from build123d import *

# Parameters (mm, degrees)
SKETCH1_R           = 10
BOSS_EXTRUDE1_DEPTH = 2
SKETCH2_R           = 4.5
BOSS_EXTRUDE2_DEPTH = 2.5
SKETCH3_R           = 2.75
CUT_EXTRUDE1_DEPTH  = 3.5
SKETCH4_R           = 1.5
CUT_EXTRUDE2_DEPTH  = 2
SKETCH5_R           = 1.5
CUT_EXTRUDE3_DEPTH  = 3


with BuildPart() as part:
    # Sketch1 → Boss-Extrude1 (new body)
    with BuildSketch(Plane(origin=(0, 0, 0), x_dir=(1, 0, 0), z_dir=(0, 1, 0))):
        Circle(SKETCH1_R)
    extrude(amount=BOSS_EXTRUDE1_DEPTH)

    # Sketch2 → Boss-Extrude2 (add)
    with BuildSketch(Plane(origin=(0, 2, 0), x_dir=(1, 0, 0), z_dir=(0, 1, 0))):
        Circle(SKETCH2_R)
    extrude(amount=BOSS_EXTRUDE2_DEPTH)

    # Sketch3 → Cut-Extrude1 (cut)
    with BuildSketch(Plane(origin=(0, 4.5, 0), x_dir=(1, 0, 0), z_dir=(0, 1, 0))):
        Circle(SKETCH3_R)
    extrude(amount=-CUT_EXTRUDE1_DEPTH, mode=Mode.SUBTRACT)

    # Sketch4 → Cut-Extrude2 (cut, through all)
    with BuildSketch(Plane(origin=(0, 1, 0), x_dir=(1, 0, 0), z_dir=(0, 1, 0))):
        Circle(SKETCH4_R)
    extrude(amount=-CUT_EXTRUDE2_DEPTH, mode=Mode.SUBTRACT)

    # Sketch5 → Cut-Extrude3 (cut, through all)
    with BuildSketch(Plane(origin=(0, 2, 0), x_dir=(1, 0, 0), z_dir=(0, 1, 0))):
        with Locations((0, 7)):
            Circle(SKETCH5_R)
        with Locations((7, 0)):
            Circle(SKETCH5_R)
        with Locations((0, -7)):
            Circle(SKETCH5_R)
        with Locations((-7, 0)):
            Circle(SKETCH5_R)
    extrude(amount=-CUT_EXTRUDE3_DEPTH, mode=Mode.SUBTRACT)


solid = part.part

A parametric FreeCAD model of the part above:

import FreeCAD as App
import Part
import Sketcher
Q = App.Units.Quantity

doc = App.newDocument("Part")
body = doc.addObject("PartDesign::Body", "Body")

# Sketch on XZ plane
sketch1 = body.newObject("Sketcher::SketchObject", "Sketch")
sketch1.AttachmentSupport = (doc.getObject("XZ_Plane"), [""])
sketch1.MapMode = "FlatFace"
sketch1.addGeometry(Part.Circle(App.Vector(0, 0, 0), App.Vector(0, 0, 1), 10), False)
sketch1.addConstraint(Sketcher.Constraint("Coincident", 0, 3, -1, 1))
sketch1.addConstraint(Sketcher.Constraint("Diameter", 0, Q("20 mm")))
pad1 = body.newObject("PartDesign::Pad", "Pad")
pad1.Profile = sketch1
pad1.Length = 2
pad1.Reversed = True

# Sketch on XZ plane
sketch2 = body.newObject("Sketcher::SketchObject", "Sketch001")
sketch2.AttachmentSupport = (doc.getObject("XZ_Plane"), [""])
sketch2.MapMode = "FlatFace"
sketch2.AttachmentOffset = App.Placement(App.Vector(0, 0, -2), App.Rotation())
sketch2.addGeometry(Part.Circle(App.Vector(0, 0, 0), App.Vector(0, 0, 1), 4.5), False)
sketch2.addConstraint(Sketcher.Constraint("Coincident", 0, 3, -1, 1))
sketch2.addConstraint(Sketcher.Constraint("Diameter", 0, Q("9 mm")))
pad2 = body.newObject("PartDesign::Pad", "Pad001")
pad2.Profile = sketch2
pad2.Length = 2.5
pad2.Reversed = True

# Sketch on XZ plane
sketch3 = body.newObject("Sketcher::SketchObject", "Sketch002")
sketch3.AttachmentSupport = (doc.getObject("XZ_Plane"), [""])
sketch3.MapMode = "FlatFace"
sketch3.AttachmentOffset = App.Placement(App.Vector(0, 0, -4.5), App.Rotation())
sketch3.addGeometry(Part.Circle(App.Vector(0, 0, 0), App.Vector(0, 0, 1), 2.75), False)
sketch3.addConstraint(Sketcher.Constraint("Coincident", 0, 3, -1, 1))
sketch3.addConstraint(Sketcher.Constraint("Diameter", 0, Q("5.5 mm")))
pocket1 = body.newObject("PartDesign::Pocket", "Pocket")
pocket1.Profile = sketch3
pocket1.Length = 3.5
pocket1.Reversed = True

# Sketch on XZ plane
sketch4 = body.newObject("Sketcher::SketchObject", "Sketch003")
sketch4.AttachmentSupport = (doc.getObject("XZ_Plane"), [""])
sketch4.MapMode = "FlatFace"
sketch4.AttachmentOffset = App.Placement(App.Vector(0, 0, -1), App.Rotation())
sketch4.addGeometry(Part.Circle(App.Vector(0, 0, 0), App.Vector(0, 0, 1), 1.5), False)
sketch4.addConstraint(Sketcher.Constraint("Coincident", 0, 3, -1, 1))
sketch4.addConstraint(Sketcher.Constraint("Diameter", 0, Q("3 mm")))
pocket2 = body.newObject("PartDesign::Pocket", "Pocket001")
pocket2.Profile = sketch4
pocket2.Type = "ThroughAll"
pocket2.Reversed = True

# Sketch on XZ plane
sketch5 = body.newObject("Sketcher::SketchObject", "Sketch004")
sketch5.AttachmentSupport = (doc.getObject("XZ_Plane"), [""])
sketch5.MapMode = "FlatFace"
sketch5.AttachmentOffset = App.Placement(App.Vector(0, 0, -2), App.Rotation())
sketch5.addGeometry(Part.Circle(App.Vector(0, -7, 0), App.Vector(0, 0, 1), 1.5), False)
sketch5.addGeometry(Part.Circle(App.Vector(7, 0, 0), App.Vector(0, 0, 1), 1.5), False)
sketch5.addGeometry(Part.Circle(App.Vector(0, 7, 0), App.Vector(0, 0, 1), 1.5), False)
sketch5.addGeometry(Part.Circle(App.Vector(-7, 0, 0), App.Vector(0, 0, 1), 1.5), False)
sketch5.addConstraint(Sketcher.Constraint("Equal", 0, 1))
sketch5.addConstraint(Sketcher.Constraint("Equal", 1, 2))
sketch5.addConstraint(Sketcher.Constraint("Equal", 2, 3))
sketch5.addConstraint(Sketcher.Constraint("Symmetric", 0, 3, 2, 3, -1, 1))
sketch5.addConstraint(Sketcher.Constraint("Symmetric", 1, 3, 3, 3, -1, 1))
sketch5.addConstraint(Sketcher.Constraint("PointOnObject", 0, 3, -2))
sketch5.addConstraint(Sketcher.Constraint("PointOnObject", 1, 3, -1))
sketch5.addConstraint(Sketcher.Constraint("Diameter", 0, Q("3 mm")))
sketch5.addConstraint(Sketcher.Constraint("DistanceY", 0, 3, -1, 1, Q("7 mm")))
sketch5.addConstraint(Sketcher.Constraint("DistanceX", -1, 1, 1, 3, Q("7 mm")))
pocket3 = body.newObject("PartDesign::Pocket", "Pocket002")
pocket3.Profile = sketch5
pocket3.Type = "ThroughAll"
pocket3.Reversed = True

doc.recompute()
